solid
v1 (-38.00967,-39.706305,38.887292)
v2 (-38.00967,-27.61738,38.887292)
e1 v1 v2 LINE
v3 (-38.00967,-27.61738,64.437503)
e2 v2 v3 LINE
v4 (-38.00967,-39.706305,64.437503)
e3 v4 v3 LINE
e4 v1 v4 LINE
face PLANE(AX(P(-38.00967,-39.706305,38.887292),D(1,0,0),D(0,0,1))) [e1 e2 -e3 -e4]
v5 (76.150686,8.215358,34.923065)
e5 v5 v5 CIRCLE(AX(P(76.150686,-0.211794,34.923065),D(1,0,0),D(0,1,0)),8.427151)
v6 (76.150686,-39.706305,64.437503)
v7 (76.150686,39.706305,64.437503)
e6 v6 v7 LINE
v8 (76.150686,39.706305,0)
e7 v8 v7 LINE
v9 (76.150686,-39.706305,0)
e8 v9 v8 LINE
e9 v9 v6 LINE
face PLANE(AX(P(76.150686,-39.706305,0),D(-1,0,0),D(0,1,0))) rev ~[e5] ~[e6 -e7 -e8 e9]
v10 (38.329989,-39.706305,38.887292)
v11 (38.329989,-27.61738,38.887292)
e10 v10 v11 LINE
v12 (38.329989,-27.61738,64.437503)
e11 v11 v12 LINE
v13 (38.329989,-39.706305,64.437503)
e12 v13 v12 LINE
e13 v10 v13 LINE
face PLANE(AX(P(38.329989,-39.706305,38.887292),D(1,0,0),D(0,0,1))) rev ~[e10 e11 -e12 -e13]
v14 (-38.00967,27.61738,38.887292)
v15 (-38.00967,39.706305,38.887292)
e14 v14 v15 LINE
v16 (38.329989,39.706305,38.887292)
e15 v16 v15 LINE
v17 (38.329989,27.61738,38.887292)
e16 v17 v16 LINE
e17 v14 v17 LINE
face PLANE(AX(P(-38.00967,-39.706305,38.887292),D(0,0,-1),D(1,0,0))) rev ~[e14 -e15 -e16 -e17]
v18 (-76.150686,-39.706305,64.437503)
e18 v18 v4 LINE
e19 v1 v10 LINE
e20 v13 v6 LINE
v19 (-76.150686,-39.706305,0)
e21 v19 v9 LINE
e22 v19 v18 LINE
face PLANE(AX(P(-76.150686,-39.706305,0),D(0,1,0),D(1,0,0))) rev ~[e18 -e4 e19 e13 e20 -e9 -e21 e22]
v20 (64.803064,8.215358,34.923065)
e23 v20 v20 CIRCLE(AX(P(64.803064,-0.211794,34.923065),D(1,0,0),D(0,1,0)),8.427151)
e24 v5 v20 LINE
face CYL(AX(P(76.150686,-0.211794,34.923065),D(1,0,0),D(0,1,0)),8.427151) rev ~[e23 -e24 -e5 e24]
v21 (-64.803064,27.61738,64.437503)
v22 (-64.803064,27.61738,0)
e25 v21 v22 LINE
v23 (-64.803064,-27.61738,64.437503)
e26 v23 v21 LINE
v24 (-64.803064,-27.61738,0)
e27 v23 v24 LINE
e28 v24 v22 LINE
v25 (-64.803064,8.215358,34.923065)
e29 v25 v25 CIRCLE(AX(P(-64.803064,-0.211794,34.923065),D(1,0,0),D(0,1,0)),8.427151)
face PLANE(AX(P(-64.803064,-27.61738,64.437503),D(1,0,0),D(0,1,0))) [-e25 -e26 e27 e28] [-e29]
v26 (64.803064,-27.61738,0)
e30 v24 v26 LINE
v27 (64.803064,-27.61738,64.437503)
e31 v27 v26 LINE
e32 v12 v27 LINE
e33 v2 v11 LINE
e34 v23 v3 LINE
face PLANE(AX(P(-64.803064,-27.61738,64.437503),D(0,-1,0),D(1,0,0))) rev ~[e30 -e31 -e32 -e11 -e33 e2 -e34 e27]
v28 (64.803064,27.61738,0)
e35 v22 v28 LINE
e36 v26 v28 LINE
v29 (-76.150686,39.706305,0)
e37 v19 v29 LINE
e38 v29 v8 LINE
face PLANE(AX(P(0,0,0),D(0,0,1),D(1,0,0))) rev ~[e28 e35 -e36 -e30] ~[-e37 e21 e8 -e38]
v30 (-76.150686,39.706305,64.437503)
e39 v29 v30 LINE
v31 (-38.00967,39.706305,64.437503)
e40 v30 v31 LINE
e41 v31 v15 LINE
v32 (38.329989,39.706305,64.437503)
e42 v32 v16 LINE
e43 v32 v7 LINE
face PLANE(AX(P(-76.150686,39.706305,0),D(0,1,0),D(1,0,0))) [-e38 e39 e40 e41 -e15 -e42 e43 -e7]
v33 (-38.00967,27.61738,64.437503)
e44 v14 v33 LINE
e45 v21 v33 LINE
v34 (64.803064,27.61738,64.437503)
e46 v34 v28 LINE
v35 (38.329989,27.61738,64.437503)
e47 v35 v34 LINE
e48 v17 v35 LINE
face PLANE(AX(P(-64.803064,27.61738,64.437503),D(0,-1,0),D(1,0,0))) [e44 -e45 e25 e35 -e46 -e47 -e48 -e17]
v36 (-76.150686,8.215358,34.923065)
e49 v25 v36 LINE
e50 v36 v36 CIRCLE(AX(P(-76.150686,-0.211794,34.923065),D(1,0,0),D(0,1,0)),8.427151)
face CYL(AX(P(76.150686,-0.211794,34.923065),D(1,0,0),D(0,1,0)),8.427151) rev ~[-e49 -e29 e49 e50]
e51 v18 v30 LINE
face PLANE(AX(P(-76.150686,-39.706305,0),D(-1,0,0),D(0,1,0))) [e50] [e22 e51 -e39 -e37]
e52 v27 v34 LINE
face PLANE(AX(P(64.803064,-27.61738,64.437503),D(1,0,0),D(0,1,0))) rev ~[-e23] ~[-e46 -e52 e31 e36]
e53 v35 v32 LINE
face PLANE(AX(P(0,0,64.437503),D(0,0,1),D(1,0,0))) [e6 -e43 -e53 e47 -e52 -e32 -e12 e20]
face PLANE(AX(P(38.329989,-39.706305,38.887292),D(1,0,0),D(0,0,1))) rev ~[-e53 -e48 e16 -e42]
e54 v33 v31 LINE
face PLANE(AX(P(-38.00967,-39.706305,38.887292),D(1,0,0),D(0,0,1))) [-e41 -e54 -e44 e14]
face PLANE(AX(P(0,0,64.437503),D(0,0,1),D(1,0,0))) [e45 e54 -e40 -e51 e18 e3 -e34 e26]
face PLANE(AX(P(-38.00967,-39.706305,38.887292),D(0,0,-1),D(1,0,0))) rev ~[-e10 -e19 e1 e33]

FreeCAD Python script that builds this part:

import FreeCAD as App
import Part
import Sketcher


def add_polygon(sketch, points):
    """Adds a closed chain of lines whose ends are joined by coincident constraints."""
    first, n = sketch.GeometryCount, len(points)
    for a, b in zip(points, points[1:] + points[:1]):
        sketch.addGeometry(Part.LineSegment(App.Vector(*a, 0), App.Vector(*b, 0)), False)
    for i in range(n):
        sketch.addConstraint(Sketcher.Constraint("Coincident", first + i, 2, first + (i + 1) % n, 1))

doc = App.newDocument("Part")
body = doc.addObject("PartDesign::Body", "Body")

# Sketch on XY plane
sketch1 = body.newObject("Sketcher::SketchObject", "Sketch")
sketch1.AttachmentSupport = (doc.getObject("XY_Plane"), [""])
sketch1.MapMode = "FlatFace"
add_polygon(sketch1, [(-76.150686, 39.706305), (-76.150686, -39.706305), (76.150686, -39.706305), (76.150686, 39.706305)])  # lines 0-3
sketch1.addConstraint([
    Sketcher.Constraint("Vertical", 0),
    Sketcher.Constraint("Horizontal", 1),
    Sketcher.Constraint("Vertical", 2),
    Sketcher.Constraint("Horizontal", 3),
    Sketcher.Constraint("Symmetric", 0, 2, 2, 2, -1, 1),
    Sketcher.Constraint("DistanceX", 1, 1, 1, 2, 152.301371),
    Sketcher.Constraint("DistanceY", 0, 2, 0, 1, 79.412609),
])
pad1 = body.newObject("PartDesign::Pad", "Pad")
pad1.Profile = sketch1
pad1.Length = 64.437503

# Sketch on XY plane
sketch2 = body.newObject("Sketcher::SketchObject", "Sketch001")
sketch2.AttachmentSupport = (doc.getObject("XY_Plane"), [""])
sketch2.MapMode = "FlatFace"
sketch2.AttachmentOffset = App.Placement(App.Vector(0, 0, 64.437503), App.Rotation())
add_polygon(sketch2, [(-64.803064, 27.61738), (-64.803064, -27.61738), (64.803064, -27.61738), (64.803064, 27.61738)])  # lines 0-3
sketch2.addConstraint([
    Sketcher.Constraint("Vertical", 0),
    Sketcher.Constraint("Horizontal", 1),
    Sketcher.Constraint("Vertical", 2),
    Sketcher.Constraint("Horizontal", 3),
    Sketcher.Constraint("Symmetric", 0, 2, 2, 2, -1, 1),
    Sketcher.Constraint("DistanceY", 0, 2, 0, 1, 55.23476),
    Sketcher.Constraint("DistanceX", 1, 1, 1, 2, 129.606128),
])
pocket1 = body.newObject("PartDesign::Pocket", "Pocket")
pocket1.Profile = sketch2
pocket1.Type = "ThroughAll"

# Sketch on XZ plane
sketch3 = body.newObject("Sketcher::SketchObject", "Sketch002")
sketch3.AttachmentSupport = (doc.getObject("XZ_Plane"), [""])
sketch3.MapMode = "FlatFace"
sketch3.AttachmentOffset = App.Placement(App.Vector(0, 0, 39.706305), App.Rotation())
add_polygon(sketch3, [(-38.00967, 64.437503), (-38.00967, 38.887292), (38.329989, 38.887292), (38.329989, 64.437503)])  # lines 0-3
sketch3.addConstraint([
    Sketcher.Constraint("Vertical", 0),
    Sketcher.Constraint("Horizontal", 1),
    Sketcher.Constraint("Vertical", 2),
    Sketcher.Constraint("Horizontal", 3),
    Sketcher.Constraint("DistanceX", 1, 1, 1, 2, 76.339658),
    Sketcher.Constraint("DistanceY", 0, 2, 0, 1, 25.550211),
    Sketcher.Constraint("DistanceX", 0, 2, -1, 1, 38.00967),
    Sketcher.Constraint("DistanceY", -1, 1, 0, 2, 38.887292),
])
pocket2 = body.newObject("PartDesign::Pocket", "Pocket001")
pocket2.Profile = sketch3
pocket2.Type = "ThroughAll"

# Sketch on YZ plane
sketch4 = body.newObject("Sketcher::SketchObject", "Sketch003")
sketch4.AttachmentSupport = (doc.getObject("YZ_Plane"), [""])
sketch4.MapMode = "FlatFace"
sketch4.AttachmentOffset = App.Placement(App.Vector(0, 0, 76.150686), App.Rotation())
sketch4.addGeometry(Part.Circle(App.Vector(-0.211794, 34.923065, 0), App.Vector(0, 0, 1), 8.427151), False)
sketch4.addConstraint([
    Sketcher.Constraint("Diameter", 0, 16.854303),
    Sketcher.Constraint("DistanceX", 0, 3, -1, 1, 0.211794),
    Sketcher.Constraint("DistanceY", -1, 1, 0, 3, 34.923065),
])
pocket3 = body.newObject("PartDesign::Pocket", "Pocket002")
pocket3.Profile = sketch4
pocket3.Type = "ThroughAll"

doc.recompute()
